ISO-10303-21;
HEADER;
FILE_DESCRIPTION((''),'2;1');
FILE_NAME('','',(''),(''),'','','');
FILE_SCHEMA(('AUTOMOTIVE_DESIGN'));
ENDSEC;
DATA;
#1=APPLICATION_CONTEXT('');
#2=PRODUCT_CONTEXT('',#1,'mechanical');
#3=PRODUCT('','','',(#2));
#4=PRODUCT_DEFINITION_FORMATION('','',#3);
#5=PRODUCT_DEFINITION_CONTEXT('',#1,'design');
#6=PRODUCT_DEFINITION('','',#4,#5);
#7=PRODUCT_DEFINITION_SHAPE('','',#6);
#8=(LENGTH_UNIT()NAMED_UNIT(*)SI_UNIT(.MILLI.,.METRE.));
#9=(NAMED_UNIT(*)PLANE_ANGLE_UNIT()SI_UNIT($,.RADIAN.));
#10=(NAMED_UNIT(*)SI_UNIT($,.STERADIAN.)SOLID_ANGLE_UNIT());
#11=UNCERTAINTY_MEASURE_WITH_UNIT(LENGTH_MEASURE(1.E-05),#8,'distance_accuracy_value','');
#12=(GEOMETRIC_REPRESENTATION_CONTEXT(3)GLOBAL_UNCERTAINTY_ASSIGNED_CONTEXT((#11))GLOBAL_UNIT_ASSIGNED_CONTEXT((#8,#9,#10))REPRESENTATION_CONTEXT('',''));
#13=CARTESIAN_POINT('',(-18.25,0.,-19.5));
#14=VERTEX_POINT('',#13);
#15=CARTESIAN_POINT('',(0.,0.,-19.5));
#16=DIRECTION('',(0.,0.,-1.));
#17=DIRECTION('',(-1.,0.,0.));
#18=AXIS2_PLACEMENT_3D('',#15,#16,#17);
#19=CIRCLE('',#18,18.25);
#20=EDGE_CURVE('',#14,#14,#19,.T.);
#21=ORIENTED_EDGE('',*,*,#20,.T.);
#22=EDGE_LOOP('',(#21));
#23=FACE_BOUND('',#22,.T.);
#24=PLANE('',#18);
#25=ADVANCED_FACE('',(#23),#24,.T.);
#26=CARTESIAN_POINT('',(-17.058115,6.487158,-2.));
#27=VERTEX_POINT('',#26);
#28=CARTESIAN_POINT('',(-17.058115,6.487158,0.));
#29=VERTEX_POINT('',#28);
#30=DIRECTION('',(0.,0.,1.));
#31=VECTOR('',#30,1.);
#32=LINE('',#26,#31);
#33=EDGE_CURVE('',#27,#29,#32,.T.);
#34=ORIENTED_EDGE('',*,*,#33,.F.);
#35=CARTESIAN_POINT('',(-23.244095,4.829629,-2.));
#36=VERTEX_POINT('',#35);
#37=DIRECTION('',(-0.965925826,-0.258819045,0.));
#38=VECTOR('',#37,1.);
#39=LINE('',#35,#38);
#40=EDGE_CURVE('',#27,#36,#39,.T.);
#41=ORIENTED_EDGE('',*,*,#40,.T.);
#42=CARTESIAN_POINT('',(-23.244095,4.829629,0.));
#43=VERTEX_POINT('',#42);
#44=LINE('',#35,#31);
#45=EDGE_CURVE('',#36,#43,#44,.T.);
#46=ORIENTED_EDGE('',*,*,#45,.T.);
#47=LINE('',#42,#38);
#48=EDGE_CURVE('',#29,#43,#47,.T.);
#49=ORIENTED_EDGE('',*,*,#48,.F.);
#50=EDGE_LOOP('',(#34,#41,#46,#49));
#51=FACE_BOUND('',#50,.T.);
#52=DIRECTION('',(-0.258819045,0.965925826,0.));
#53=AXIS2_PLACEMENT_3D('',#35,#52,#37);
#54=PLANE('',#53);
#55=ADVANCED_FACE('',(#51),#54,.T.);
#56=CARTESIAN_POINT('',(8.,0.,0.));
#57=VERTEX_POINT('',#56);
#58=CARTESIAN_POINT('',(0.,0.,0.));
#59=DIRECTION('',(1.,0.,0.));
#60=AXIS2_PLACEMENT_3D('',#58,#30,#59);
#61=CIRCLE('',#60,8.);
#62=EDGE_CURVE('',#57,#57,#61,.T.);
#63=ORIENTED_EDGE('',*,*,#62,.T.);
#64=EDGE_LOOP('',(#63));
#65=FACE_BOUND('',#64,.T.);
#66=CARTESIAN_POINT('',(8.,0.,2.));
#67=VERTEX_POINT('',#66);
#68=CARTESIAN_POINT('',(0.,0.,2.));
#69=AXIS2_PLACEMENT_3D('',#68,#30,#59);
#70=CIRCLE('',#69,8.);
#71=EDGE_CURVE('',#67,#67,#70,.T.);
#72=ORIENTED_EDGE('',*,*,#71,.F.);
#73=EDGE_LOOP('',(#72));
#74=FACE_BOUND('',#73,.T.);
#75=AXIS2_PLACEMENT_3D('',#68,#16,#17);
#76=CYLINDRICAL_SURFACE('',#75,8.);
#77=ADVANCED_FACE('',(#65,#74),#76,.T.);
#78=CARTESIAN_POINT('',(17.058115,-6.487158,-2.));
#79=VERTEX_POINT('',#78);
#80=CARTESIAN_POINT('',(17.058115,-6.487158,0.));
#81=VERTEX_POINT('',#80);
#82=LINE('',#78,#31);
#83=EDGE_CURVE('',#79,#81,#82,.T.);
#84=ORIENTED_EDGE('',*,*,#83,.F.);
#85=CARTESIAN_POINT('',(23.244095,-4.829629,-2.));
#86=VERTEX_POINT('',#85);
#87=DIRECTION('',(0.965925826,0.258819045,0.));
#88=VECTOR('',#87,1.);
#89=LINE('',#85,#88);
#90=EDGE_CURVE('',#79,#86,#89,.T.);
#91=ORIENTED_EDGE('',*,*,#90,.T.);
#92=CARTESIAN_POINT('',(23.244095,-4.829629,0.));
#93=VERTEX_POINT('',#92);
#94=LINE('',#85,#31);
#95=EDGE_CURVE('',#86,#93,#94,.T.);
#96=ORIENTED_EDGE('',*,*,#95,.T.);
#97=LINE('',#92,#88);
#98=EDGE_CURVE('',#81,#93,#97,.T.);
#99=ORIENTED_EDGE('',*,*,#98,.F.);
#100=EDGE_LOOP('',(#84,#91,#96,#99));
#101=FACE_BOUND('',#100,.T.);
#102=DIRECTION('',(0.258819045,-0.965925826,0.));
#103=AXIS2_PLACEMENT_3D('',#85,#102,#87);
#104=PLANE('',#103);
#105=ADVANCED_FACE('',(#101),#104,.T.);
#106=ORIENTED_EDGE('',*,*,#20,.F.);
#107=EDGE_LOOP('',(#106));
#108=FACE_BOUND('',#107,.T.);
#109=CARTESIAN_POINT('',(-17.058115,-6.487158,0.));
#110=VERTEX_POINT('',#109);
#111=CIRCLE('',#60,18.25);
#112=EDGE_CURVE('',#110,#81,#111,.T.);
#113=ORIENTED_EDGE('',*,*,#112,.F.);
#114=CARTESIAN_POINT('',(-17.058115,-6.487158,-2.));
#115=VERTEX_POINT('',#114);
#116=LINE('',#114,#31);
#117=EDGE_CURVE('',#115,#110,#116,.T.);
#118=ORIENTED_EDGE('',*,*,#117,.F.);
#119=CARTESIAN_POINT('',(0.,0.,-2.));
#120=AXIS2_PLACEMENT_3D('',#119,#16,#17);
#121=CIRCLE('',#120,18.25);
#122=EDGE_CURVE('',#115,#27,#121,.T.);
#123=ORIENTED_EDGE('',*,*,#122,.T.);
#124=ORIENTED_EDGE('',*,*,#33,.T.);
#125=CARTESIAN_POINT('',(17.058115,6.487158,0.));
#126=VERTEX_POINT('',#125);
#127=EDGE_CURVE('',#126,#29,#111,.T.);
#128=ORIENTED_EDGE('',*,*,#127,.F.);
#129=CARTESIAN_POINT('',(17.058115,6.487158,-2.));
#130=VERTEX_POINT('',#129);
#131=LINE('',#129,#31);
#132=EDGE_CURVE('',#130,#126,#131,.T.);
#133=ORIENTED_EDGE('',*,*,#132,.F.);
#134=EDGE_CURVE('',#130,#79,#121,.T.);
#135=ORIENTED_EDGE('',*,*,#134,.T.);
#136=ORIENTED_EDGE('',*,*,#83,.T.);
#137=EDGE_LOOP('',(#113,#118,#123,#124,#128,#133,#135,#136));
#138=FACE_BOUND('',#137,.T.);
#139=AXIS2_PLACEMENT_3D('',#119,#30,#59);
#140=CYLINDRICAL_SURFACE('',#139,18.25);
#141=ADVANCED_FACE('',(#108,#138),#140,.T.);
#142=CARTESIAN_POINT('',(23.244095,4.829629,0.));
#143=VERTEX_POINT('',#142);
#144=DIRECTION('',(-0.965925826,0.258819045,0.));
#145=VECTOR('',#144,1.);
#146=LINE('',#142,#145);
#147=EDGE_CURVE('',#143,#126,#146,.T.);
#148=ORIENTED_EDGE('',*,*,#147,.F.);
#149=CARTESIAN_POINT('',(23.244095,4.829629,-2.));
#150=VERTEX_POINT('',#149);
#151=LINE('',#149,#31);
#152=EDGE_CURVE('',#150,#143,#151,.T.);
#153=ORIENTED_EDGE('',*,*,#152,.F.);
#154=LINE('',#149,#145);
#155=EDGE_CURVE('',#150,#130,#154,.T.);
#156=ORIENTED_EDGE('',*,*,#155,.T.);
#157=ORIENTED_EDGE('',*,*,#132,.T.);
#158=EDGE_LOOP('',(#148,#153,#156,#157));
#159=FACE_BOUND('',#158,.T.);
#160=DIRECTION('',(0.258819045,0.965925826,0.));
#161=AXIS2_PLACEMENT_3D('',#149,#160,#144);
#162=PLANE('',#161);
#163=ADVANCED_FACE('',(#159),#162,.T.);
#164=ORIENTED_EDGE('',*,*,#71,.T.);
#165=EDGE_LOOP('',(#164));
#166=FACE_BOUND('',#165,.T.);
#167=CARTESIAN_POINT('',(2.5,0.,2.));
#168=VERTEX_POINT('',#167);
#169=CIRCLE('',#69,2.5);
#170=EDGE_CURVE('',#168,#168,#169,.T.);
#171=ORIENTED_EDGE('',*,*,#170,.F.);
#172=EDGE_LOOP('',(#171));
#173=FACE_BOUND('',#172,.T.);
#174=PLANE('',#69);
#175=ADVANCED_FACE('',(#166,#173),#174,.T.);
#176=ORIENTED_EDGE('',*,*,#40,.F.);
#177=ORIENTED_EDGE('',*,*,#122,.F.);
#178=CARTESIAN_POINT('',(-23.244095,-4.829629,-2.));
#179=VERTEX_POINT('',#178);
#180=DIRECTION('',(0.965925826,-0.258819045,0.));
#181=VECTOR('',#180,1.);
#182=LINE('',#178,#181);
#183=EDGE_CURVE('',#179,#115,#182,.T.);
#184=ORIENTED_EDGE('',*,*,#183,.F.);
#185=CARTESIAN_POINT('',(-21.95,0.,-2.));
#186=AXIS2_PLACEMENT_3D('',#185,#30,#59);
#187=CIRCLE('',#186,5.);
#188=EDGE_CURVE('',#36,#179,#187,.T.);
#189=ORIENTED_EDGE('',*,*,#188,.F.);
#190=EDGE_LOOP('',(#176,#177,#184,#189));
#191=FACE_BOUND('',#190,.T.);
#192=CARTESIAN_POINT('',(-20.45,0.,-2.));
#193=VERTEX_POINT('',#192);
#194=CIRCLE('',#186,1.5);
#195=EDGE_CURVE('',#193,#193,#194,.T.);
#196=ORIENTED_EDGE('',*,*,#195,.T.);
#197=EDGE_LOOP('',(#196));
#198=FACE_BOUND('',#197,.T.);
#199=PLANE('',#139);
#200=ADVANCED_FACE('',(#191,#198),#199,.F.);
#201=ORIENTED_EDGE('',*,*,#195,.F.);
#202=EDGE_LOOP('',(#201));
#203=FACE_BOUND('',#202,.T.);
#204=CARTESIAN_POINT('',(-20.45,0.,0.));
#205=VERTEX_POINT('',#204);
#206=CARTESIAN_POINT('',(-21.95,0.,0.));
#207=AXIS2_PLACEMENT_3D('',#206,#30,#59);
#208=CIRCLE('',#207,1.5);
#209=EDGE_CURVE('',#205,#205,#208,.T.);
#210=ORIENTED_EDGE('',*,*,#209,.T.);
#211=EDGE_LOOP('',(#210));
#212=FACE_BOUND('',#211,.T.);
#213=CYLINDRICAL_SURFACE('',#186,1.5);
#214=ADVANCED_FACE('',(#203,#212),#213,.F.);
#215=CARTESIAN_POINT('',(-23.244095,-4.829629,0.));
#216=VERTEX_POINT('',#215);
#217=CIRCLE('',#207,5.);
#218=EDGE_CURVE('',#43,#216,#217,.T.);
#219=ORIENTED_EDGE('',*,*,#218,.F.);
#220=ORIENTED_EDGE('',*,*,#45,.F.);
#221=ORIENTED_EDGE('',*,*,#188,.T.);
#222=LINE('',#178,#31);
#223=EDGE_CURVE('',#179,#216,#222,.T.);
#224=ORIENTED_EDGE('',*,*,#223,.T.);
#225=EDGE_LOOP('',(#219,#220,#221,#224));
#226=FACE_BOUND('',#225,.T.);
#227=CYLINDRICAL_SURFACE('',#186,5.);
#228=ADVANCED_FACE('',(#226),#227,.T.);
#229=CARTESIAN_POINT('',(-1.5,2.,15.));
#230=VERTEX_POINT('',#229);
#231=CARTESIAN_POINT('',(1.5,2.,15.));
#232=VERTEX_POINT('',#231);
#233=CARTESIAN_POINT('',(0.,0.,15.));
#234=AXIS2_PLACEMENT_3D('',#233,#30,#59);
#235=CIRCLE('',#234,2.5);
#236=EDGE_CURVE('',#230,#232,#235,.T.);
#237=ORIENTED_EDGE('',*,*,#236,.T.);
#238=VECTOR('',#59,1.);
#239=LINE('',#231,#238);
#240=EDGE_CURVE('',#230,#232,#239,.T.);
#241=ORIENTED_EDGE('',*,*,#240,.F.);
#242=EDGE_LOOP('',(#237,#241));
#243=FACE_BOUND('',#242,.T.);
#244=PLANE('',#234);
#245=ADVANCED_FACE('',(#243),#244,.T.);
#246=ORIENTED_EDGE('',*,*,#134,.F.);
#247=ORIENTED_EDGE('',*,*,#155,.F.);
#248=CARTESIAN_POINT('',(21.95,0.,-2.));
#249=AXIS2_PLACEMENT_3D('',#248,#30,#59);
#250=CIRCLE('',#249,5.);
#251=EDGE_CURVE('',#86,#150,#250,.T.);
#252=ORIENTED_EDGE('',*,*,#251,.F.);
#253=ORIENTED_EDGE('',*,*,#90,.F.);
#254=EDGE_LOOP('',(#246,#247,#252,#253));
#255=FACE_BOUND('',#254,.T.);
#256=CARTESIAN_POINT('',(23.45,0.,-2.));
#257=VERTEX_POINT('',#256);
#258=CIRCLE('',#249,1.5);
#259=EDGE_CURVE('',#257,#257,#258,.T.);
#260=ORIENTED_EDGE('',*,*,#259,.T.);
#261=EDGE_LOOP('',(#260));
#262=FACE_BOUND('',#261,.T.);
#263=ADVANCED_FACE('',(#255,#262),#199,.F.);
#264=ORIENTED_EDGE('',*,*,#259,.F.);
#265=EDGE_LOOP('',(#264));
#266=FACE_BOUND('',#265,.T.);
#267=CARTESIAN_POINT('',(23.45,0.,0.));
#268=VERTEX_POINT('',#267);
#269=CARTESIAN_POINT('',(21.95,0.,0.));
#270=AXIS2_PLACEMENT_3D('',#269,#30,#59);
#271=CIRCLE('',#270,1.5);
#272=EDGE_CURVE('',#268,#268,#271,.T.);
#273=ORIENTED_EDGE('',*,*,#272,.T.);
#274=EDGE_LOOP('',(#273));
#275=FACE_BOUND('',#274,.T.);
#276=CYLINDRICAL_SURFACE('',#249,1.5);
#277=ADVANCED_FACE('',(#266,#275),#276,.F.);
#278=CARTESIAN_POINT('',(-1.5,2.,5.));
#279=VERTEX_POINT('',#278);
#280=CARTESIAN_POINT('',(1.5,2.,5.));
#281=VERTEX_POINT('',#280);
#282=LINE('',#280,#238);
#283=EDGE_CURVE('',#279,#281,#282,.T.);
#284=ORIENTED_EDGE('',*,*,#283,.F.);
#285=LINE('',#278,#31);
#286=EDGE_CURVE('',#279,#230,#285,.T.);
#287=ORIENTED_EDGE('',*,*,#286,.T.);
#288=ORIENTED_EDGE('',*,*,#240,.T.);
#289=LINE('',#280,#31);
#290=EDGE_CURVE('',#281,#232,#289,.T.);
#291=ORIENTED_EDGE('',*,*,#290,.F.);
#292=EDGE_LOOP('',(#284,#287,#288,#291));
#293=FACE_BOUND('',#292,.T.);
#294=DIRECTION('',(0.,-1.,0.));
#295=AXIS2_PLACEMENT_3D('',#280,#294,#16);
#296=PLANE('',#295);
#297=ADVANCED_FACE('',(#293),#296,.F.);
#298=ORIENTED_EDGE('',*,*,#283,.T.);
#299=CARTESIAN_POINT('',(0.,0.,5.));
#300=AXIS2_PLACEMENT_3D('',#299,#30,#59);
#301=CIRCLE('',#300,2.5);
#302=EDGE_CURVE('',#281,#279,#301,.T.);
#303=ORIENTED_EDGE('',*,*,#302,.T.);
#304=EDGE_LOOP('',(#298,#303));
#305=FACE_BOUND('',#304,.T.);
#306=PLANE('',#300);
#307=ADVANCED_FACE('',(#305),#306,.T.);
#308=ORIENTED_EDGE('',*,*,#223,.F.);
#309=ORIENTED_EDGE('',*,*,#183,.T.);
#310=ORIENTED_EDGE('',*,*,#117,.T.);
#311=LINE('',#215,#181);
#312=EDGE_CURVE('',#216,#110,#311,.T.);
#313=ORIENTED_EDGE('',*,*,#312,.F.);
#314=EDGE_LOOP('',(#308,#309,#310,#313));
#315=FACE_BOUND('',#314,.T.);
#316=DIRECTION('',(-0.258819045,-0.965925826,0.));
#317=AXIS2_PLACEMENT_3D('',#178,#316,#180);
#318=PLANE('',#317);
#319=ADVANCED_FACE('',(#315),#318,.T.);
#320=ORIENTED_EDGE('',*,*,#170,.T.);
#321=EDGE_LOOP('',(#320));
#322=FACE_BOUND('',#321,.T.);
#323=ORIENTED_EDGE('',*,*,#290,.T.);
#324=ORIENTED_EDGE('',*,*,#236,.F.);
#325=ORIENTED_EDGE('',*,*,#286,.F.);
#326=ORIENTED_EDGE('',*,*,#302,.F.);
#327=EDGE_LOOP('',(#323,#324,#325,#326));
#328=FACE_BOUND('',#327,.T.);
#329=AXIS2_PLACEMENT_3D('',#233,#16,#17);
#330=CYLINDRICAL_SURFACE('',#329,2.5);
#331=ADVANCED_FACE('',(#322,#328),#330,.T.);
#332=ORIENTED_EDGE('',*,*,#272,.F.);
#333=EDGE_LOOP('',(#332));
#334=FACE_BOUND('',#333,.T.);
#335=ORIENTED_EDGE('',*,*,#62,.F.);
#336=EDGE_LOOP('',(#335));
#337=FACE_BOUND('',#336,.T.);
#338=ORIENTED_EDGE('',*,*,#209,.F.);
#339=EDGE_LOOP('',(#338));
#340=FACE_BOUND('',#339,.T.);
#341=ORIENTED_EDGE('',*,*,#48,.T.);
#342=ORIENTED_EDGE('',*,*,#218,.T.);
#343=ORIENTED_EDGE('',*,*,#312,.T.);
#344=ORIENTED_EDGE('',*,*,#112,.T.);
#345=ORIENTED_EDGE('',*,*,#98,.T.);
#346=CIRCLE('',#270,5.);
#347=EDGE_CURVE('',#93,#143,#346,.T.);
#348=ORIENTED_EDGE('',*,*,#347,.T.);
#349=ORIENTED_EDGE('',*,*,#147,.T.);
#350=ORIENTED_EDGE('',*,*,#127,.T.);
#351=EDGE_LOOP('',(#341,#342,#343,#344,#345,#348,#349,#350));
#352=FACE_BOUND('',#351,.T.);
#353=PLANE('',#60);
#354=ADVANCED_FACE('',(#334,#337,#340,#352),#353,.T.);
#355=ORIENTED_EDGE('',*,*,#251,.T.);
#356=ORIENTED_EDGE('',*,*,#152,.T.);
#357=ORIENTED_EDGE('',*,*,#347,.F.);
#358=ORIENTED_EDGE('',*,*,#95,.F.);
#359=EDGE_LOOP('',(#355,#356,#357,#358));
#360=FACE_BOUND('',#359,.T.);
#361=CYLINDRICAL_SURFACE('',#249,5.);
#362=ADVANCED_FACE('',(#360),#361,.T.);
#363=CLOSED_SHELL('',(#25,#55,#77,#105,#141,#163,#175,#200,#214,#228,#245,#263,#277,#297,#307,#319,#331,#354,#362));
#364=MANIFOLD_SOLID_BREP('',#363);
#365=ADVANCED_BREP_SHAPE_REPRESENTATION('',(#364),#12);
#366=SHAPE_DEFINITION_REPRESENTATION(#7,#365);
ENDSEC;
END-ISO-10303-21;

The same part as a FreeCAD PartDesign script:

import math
import FreeCAD as App
import Part
import Sketcher
Q = App.Units.Quantity

doc = App.newDocument("Part")
params = doc.addObject("Spreadsheet::Sheet", "Params")
for row, (alias, value) in enumerate([
    ("sketch1_diameter", "3 mm"),
    ("sketch1_radius", "5 mm"),
    ("sketch1_radius2", "18.25 mm"),
    ("pad1_length", "2 mm"),
    ("sketch2_diameter", "36.5 mm"),
    ("pad2_length", "17.5 mm"),
    ("sketch3_diameter", "16 mm"),
    ("pad3_length", "2 mm"),
    ("sketch4_diameter", "5 mm"),
    ("pad4_length", "13 mm"),
    ("sketch5_radius", "2.5 mm"),
    ("sketch5_width", "3 mm"),
    ("pocket1_length", "10 mm"),
], start=1):
    params.set(f"A{row}", alias)
    params.set(f"B{row}", "=" + value)
    params.setAlias(f"B{row}", alias)

body = doc.addObject("PartDesign::Body", "Body")

# Sketch on XY plane
sketch1 = doc.addObject("Sketcher::SketchObject", "Sketch")
body.addObject(sketch1)
sketch1.AttachmentSupport = (doc.XY_Plane, [""])
sketch1.MapMode = "FlatFace"
sketch1.addGeometry(Part.LineSegment(App.Vector(-17.058115, 6.487158, 0), App.Vector(-23.244095, 4.829629, 0)), False)
sketch1.addGeometry(Part.ArcOfCircle(Part.Circle(App.Vector(-21.95, 0, 0), App.Vector(0, 0, 1), 5), math.radians(105), math.radians(255)), False)
sketch1.addGeometry(Part.LineSegment(App.Vector(-23.244095, -4.829629, 0), App.Vector(-17.058115, -6.487158, 0)), False)
sketch1.addGeometry(Part.ArcOfCircle(Part.Circle(App.Vector(0, 0, 0), App.Vector(0, 0, 1), 18.25), math.radians(-159.178319), math.radians(-20.821681)), False)
sketch1.addGeometry(Part.LineSegment(App.Vector(17.058115, -6.487158, 0), App.Vector(23.244095, -4.829629, 0)), False)
sketch1.addGeometry(Part.ArcOfCircle(Part.Circle(App.Vector(21.95, 0, 0), App.Vector(0, 0, 1), 5), math.radians(-75), math.radians(75)), False)
sketch1.addGeometry(Part.LineSegment(App.Vector(23.244095, 4.829629, 0), App.Vector(17.058115, 6.487158, 0)), False)
sketch1.addGeometry(Part.ArcOfCircle(Part.Circle(App.Vector(0, 0, 0), App.Vector(0, 0, 1), 18.25), math.radians(20.821681), math.radians(159.178319)), False)
sketch1.addGeometry(Part.Circle(App.Vector(21.95, 0, 0), App.Vector(0, 0, 1), 1.5), False)
sketch1.addGeometry(Part.Circle(App.Vector(-21.95, 0, 0), App.Vector(0, 0, 1), 1.5), False)
sketch1.addConstraint(Sketcher.Constraint("Tangent", 0, 2, 1, 1))
sketch1.addConstraint(Sketcher.Constraint("Tangent", 1, 2, 2, 1))
sketch1.addConstraint(Sketcher.Constraint("Coincident", 2, 2, 3, 1))
sketch1.addConstraint(Sketcher.Constraint("Coincident", 3, 2, 4, 1))
sketch1.addConstraint(Sketcher.Constraint("Tangent", 4, 2, 5, 1))
sketch1.addConstraint(Sketcher.Constraint("Tangent", 5, 2, 6, 1))
sketch1.addConstraint(Sketcher.Constraint("Coincident", 6, 2, 7, 1))
sketch1.addConstraint(Sketcher.Constraint("Coincident", 7, 2, 0, 1))
sketch1.addConstraint(Sketcher.Constraint("Coincident", 3, 3, -1, 1))
sketch1.addConstraint(Sketcher.Constraint("Coincident", 7, 3, -1, 1))
sketch1.addConstraint(Sketcher.Constraint("Coincident", 8, 3, 5, 3))
sketch1.addConstraint(Sketcher.Constraint("Coincident", 9, 3, 1, 3))
sketch1.addConstraint(Sketcher.Constraint("Equal", 1, 5))
sketch1.addConstraint(Sketcher.Constraint("Equal", 3, 7))
sketch1.addConstraint(Sketcher.Constraint("Equal", 8, 9))
sketch1.addConstraint(Sketcher.Constraint("Symmetric", 1, 3, 5, 3, -1, 1))
sketch1.addConstraint(Sketcher.Constraint("Symmetric", 1, 2, 4, 2, -2))
sketch1.addConstraint(Sketcher.Constraint("Parallel", 0, 4))
sketch1.addConstraint(Sketcher.Constraint("Parallel", 2, 6))
sketch1.addConstraint(Sketcher.Constraint("Diameter", 8, 3.0))
sketch1.addConstraint(Sketcher.Constraint("Radius", 1, 5.0))
sketch1.addConstraint(Sketcher.Constraint("Angle", 0, Q("-165 deg")))
sketch1.addConstraint(Sketcher.Constraint("Radius", 3, 18.25))
sketch1.addConstraint(Sketcher.Constraint("DistanceX", 1, 3, 5, 3, 43.9))
sketch1.setExpression("Constraints[19]", "Params.sketch1_diameter")
sketch1.setExpression("Constraints[20]", "Params.sketch1_radius")
sketch1.setExpression("Constraints[22]", "Params.sketch1_radius2")
pad1 = doc.addObject("PartDesign::Pad", "Pad")
body.addObject(pad1)
pad1.Profile = sketch1
pad1.setExpression("Length", "Params.pad1_length")
pad1.Reversed = True

# Sketch on XY plane
sketch2 = doc.addObject("Sketcher::SketchObject", "Sketch001")
body.addObject(sketch2)
sketch2.AttachmentSupport = (doc.XY_Plane, [""])
sketch2.MapMode = "FlatFace"
sketch2.AttachmentOffset = App.Placement(App.Vector(0, 0, -2), App.Rotation())
sketch2.addGeometry(Part.Circle(App.Vector(0, 0, 0), App.Vector(0, 0, 1), 18.25), False)
sketch2.addConstraint(Sketcher.Constraint("Coincident", 0, 3, -1, 1))
sketch2.addConstraint(Sketcher.Constraint("Diameter", 0, 36.5))
sketch2.setExpression("Constraints[1]", "Params.sketch2_diameter")
pad2 = doc.addObject("PartDesign::Pad", "Pad001")
body.addObject(pad2)
pad2.Profile = sketch2
pad2.setExpression("Length", "Params.pad2_length")
pad2.Reversed = True

# Sketch on XY plane
sketch3 = doc.addObject("Sketcher::SketchObject", "Sketch002")
body.addObject(sketch3)
sketch3.AttachmentSupport = (doc.XY_Plane, [""])
sketch3.MapMode = "FlatFace"
sketch3.addGeometry(Part.Circle(App.Vector(0, 0, 0), App.Vector(0, 0, 1), 8), False)
sketch3.addConstraint(Sketcher.Constraint("Coincident", 0, 3, -1, 1))
sketch3.addConstraint(Sketcher.Constraint("Diameter", 0, 16.0))
sketch3.setExpression("Constraints[1]", "Params.sketch3_diameter")
pad3 = doc.addObject("PartDesign::Pad", "Pad002")
body.addObject(pad3)
pad3.Profile = sketch3
pad3.setExpression("Length", "Params.pad3_length")

# Sketch on XY plane
sketch4 = doc.addObject("Sketcher::SketchObject", "Sketch003")
body.addObject(sketch4)
sketch4.AttachmentSupport = (doc.XY_Plane, [""])
sketch4.MapMode = "FlatFace"
sketch4.AttachmentOffset = App.Placement(App.Vector(0, 0, 2), App.Rotation())
sketch4.addGeometry(Part.Circle(App.Vector(0, 0, 0), App.Vector(0, 0, 1), 2.5), False)
sketch4.addConstraint(Sketcher.Constraint("Coincident", 0, 3, -1, 1))
sketch4.addConstraint(Sketcher.Constraint("Diameter", 0, 5.0))
sketch4.setExpression("Constraints[1]", "Params.sketch4_diameter")
pad4 = doc.addObject("PartDesign::Pad", "Pad003")
body.addObject(pad4)
pad4.Profile = sketch4
pad4.setExpression("Length", "Params.pad4_length")

# Sketch on XY plane
sketch5 = doc.addObject("Sketcher::SketchObject", "Sketch004")
body.addObject(sketch5)
sketch5.AttachmentSupport = (doc.XY_Plane, [""])
sketch5.MapMode = "FlatFace"
sketch5.AttachmentOffset = App.Placement(App.Vector(0, 0, 5), App.Rotation())
sketch5.addGeometry(Part.LineSegment(App.Vector(-1.5, 2, 0), App.Vector(1.5, 2, 0)), False)
sketch5.addGeometry(Part.ArcOfCircle(Part.Circle(App.Vector(0, 0, 0), App.Vector(0, 0, 1), 2.5), math.radians(53.130102), math.radians(126.869898)), False)
sketch5.addConstraint(Sketcher.Constraint("Coincident", 0, 1, 1, 2))
sketch5.addConstraint(Sketcher.Constraint("Coincident", 1, 1, 0, 2))
sketch5.addConstraint(Sketcher.Constraint("Horizontal", 0))
sketch5.addConstraint(Sketcher.Constraint("Coincident", 1, 3, -1, 1))
sketch5.addConstraint(Sketcher.Constraint("Radius", 1, 2.5))
sketch5.addConstraint(Sketcher.Constraint("DistanceX", 0, 1, 0, 2, 3.0))
sketch5.setExpression("Constraints[4]", "Params.sketch5_radius")
sketch5.setExpression("Constraints[5]", "Params.sketch5_width")
pocket1 = doc.addObject("PartDesign::Pocket", "Pocket")
body.addObject(pocket1)
pocket1.Profile = sketch5
pocket1.setExpression("Length", "Params.pocket1_length")
pocket1.Reversed = True

doc.recompute()
